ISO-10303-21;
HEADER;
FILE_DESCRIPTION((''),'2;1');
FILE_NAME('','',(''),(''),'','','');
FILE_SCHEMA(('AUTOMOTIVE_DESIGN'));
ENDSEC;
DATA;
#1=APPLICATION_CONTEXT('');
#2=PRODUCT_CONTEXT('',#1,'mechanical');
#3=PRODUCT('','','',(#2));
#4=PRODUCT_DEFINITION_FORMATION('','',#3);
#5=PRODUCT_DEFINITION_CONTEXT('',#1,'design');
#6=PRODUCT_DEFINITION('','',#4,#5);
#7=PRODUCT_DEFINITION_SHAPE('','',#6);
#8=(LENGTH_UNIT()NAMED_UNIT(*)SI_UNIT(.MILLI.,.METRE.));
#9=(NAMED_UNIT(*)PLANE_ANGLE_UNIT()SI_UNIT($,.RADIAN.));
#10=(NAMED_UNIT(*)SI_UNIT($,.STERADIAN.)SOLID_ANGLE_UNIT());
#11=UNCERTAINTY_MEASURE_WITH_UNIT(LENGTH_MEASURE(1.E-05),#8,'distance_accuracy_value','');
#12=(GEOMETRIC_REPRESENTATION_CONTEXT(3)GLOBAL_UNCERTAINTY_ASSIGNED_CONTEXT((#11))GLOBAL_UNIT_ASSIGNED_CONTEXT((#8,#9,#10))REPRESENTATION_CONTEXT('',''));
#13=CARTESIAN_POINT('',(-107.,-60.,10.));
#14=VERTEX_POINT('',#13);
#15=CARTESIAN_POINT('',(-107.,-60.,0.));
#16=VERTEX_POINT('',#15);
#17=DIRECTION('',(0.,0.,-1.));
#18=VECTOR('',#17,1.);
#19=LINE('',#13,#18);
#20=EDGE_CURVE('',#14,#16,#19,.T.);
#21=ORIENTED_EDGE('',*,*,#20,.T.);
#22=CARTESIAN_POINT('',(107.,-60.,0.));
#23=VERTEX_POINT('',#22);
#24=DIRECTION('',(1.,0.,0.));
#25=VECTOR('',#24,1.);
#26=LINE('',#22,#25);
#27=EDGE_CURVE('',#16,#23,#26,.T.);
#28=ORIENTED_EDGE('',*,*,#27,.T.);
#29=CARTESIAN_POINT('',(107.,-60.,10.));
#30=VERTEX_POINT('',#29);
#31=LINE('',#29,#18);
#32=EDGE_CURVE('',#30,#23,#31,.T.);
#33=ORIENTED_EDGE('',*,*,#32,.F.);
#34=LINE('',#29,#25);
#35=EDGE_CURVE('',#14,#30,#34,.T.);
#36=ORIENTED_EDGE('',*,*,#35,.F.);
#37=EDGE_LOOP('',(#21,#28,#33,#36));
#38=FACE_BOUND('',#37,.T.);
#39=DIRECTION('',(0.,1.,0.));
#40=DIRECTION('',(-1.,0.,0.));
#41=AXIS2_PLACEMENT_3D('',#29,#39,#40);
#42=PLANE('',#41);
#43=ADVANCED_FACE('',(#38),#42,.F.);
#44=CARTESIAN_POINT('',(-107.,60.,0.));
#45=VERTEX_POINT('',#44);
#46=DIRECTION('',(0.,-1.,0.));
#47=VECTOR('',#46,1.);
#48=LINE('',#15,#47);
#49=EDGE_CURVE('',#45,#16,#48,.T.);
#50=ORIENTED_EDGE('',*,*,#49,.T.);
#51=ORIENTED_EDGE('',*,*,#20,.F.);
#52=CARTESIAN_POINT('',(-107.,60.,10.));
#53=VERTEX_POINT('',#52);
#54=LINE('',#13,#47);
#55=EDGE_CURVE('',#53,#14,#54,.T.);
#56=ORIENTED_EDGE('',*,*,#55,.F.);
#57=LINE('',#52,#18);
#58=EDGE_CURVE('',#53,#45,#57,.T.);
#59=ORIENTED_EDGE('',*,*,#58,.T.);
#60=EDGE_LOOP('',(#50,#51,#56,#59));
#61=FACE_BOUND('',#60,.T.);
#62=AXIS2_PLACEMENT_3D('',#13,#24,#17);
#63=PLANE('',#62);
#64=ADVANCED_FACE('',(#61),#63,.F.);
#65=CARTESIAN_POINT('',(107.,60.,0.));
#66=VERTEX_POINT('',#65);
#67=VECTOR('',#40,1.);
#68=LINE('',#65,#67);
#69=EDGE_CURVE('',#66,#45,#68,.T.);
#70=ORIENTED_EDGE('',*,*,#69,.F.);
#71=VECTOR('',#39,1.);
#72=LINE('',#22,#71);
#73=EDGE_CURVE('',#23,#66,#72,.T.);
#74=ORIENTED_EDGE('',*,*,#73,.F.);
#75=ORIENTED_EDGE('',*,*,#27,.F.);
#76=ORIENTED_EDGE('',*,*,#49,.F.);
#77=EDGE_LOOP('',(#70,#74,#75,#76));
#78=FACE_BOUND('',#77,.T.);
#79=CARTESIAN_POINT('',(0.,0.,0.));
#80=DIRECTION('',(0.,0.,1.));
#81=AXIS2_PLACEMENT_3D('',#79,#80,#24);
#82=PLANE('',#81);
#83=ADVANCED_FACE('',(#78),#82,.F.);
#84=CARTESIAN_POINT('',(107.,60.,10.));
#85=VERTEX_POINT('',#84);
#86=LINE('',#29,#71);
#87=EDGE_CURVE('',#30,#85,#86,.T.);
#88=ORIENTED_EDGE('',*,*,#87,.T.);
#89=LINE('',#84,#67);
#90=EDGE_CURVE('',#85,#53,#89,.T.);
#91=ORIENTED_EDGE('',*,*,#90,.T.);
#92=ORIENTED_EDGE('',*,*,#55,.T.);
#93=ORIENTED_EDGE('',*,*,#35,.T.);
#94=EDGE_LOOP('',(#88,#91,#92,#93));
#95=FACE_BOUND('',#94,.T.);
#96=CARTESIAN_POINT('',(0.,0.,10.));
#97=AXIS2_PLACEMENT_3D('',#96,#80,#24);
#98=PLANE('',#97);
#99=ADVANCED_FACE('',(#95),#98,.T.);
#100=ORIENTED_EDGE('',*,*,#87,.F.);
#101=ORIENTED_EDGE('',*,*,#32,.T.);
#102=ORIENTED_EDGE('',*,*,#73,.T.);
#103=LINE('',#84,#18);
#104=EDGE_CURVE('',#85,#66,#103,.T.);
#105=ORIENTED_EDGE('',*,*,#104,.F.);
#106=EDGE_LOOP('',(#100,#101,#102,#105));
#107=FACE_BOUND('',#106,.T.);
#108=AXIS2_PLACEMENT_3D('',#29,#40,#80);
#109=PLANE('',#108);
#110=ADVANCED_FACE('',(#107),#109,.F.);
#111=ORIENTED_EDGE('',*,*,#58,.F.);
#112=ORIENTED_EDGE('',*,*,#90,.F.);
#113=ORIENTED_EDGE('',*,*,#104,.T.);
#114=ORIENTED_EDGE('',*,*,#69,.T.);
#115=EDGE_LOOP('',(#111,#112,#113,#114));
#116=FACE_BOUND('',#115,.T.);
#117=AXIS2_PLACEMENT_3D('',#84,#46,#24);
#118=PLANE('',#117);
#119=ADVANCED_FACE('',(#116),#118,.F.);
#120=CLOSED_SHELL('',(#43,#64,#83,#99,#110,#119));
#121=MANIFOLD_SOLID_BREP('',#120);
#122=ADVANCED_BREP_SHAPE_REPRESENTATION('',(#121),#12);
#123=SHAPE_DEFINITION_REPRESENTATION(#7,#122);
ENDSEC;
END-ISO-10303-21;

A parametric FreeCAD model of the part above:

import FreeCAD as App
import Part
import Sketcher
from FreeCAD import Vector
Q = App.Units.Quantity


def add_polygon(sketch, points):
    """Adds a closed chain of lines whose ends are joined by coincident constraints."""
    first, n = sketch.GeometryCount, len(points)
    for a, b in zip(points, points[1:] + points[:1]):
        sketch.addGeometry(Part.LineSegment(App.Vector(*a, 0), App.Vector(*b, 0)), False)
    for i in range(n):
        sketch.addConstraint(Sketcher.Constraint("Coincident", first + i, 2, first + (i + 1) % n, 1))

doc = App.newDocument("Part")
body = doc.addObject("PartDesign::Body", "Body")

# Sketch on XY plane
sketch1 = body.newObject("Sketcher::SketchObject", "Sketch")
sketch1.AttachmentSupport = (doc.getObject("XY_Plane"), [""])
sketch1.MapMode = "FlatFace"
add_polygon(sketch1, [(-107, 60), (-107, -60), (107, -60), (107, 60)])  # lines 0-3
sketch1.addConstraint([
    Sketcher.Constraint("Vertical", 0),
    Sketcher.Constraint("Horizontal", 1),
    Sketcher.Constraint("Vertical", 2),
    Sketcher.Constraint("Horizontal", 3),
    Sketcher.Constraint("Symmetric", 0, 2, 2, 2, -1, 1),
    Sketcher.Constraint("DistanceX", 1, 1, 1, 2, Q("214 mm")),
    Sketcher.Constraint("DistanceY", 0, 2, 0, 1, Q("120 mm")),
])
pad1 = body.newObject("PartDesign::Pad", "Pad")
pad1.Profile = sketch1
pad1.Length = 10

doc.recompute()
